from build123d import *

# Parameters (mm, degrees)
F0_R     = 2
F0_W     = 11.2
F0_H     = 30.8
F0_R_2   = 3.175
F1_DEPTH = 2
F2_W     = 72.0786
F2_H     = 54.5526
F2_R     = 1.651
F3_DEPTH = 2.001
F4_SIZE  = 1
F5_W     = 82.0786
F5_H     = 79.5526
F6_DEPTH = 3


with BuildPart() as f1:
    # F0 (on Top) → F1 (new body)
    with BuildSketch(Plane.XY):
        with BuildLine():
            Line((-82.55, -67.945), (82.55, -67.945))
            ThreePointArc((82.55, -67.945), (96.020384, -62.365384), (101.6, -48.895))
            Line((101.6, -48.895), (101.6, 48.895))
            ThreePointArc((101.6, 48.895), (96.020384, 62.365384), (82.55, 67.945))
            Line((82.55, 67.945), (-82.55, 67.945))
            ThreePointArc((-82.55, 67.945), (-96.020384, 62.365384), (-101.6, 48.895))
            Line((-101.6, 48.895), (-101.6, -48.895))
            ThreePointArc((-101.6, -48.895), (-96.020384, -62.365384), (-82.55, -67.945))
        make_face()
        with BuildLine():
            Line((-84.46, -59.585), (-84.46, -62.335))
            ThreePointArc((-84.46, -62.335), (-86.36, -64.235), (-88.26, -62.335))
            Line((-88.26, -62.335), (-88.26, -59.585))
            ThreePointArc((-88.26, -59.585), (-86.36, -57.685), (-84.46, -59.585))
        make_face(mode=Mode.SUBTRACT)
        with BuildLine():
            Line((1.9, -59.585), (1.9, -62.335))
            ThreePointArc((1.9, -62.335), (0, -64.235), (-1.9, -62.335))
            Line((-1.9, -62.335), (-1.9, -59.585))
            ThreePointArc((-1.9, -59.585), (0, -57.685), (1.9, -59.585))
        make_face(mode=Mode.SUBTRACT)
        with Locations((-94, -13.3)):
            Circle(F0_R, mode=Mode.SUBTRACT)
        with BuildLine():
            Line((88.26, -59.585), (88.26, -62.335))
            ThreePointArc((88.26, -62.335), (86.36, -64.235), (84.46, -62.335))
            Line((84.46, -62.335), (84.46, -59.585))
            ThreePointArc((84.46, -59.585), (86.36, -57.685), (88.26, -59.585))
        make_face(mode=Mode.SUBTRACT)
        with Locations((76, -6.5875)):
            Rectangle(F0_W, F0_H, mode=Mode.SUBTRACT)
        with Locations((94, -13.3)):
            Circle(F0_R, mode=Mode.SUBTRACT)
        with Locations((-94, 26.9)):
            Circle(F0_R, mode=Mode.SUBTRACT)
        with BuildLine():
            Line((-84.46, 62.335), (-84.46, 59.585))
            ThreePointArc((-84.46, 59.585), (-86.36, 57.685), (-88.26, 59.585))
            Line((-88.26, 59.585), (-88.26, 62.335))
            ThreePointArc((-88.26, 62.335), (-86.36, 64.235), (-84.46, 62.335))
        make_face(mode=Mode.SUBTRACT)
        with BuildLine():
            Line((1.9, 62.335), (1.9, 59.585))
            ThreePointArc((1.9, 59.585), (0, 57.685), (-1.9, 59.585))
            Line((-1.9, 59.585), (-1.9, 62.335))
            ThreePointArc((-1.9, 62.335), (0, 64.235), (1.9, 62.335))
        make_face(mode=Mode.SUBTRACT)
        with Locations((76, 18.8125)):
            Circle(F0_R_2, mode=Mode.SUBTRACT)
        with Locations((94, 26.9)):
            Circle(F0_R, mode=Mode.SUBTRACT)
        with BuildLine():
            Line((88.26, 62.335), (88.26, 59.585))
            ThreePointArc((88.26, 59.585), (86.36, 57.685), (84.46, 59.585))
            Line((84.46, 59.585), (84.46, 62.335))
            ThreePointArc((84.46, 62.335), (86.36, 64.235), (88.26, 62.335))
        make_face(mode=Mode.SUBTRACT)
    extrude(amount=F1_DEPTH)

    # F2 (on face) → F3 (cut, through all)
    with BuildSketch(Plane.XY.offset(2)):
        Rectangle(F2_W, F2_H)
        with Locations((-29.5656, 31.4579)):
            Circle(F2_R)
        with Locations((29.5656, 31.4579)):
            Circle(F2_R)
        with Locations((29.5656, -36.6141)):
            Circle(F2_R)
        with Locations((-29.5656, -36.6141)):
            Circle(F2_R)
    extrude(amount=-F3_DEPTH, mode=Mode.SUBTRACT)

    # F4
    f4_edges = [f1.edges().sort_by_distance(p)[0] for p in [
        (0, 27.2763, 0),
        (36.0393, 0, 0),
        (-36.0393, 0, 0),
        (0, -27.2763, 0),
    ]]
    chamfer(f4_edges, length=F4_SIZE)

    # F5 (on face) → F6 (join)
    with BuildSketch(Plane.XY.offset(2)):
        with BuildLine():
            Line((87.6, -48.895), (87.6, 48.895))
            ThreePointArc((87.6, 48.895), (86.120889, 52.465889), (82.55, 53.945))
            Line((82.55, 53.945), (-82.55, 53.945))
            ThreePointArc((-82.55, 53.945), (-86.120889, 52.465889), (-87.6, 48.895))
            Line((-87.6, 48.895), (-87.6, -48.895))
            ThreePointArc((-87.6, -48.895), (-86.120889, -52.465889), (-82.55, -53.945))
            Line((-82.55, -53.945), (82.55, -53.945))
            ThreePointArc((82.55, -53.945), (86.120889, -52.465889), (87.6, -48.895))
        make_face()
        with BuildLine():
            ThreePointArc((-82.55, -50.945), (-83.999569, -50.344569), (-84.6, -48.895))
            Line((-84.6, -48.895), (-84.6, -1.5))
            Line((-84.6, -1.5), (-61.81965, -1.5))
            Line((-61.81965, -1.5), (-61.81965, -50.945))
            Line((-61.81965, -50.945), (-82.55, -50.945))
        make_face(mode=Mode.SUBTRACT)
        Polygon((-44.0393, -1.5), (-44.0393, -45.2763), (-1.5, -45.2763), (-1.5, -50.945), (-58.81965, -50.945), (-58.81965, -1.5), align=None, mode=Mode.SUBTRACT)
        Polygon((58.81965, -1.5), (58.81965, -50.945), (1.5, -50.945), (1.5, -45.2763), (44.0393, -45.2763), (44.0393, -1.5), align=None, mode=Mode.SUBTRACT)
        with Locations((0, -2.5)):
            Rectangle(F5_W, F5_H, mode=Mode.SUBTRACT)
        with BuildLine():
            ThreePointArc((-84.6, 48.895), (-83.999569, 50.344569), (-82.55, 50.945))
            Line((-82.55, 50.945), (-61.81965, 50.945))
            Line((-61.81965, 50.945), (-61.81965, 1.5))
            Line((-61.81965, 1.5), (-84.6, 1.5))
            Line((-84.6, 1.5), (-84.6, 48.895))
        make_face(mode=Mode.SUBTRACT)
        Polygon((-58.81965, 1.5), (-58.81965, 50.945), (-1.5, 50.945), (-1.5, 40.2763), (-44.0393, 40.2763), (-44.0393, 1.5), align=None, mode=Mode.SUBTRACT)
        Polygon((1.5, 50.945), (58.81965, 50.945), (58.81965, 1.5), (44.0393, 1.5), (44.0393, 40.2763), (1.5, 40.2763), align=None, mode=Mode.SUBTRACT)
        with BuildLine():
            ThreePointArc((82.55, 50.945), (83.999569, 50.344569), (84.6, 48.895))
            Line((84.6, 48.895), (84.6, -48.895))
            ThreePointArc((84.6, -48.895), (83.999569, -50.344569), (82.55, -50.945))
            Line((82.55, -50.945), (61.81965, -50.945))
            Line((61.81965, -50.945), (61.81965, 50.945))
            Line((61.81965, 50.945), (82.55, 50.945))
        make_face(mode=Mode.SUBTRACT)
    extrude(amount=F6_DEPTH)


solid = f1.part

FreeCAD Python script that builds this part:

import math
import FreeCAD as App
import Part
import Sketcher


def edges_at(feature, points):
    """Names of the edges that pass closest to the given points."""
    edges = feature.Shape.Edges
    near = lambda p: min(range(len(edges)), key=lambda i: edges[i].distToShape(Part.Vertex(*p))[0])
    return sorted({f"Edge{near(p) + 1}" for p in points})

doc = App.newDocument("Part")
body = doc.addObject("PartDesign::Body", "Body")

# Sketch on XY plane
sketch1 = body.newObject("Sketcher::SketchObject", "Sketch")
sketch1.AttachmentSupport = (doc.getObject("XY_Plane"), [""])
sketch1.MapMode = "FlatFace"
sketch1.addGeometry([
    Part.LineSegment(App.Vector(-82.55, -67.945, 0), App.Vector(82.55, -67.945, 0)),  # 0
    Part.ArcOfCircle(Part.Circle(App.Vector(82.549999, -48.894999, 0), App.Vector(0, 0, 1), 19.050001), math.radians(-89.999998), math.radians(-0.000002)),  # 1
    Part.LineSegment(App.Vector(101.6, -48.895, 0), App.Vector(101.6, 48.895, 0)),  # 2
    Part.ArcOfCircle(Part.Circle(App.Vector(82.549999, 48.894999, 0), App.Vector(0, 0, 1), 19.050001), math.radians(0.000002), math.radians(89.999998)),  # 3
    Part.LineSegment(App.Vector(82.55, 67.945, 0), App.Vector(-82.55, 67.945, 0)),  # 4
    Part.ArcOfCircle(Part.Circle(App.Vector(-82.549999, 48.894999, 0), App.Vector(0, 0, 1), 19.050001), math.radians(90.000002), math.radians(179.999998)),  # 5
    Part.LineSegment(App.Vector(-101.6, 48.895, 0), App.Vector(-101.6, -48.895, 0)),  # 6
    Part.ArcOfCircle(Part.Circle(App.Vector(-82.549999, -48.894999, 0), App.Vector(0, 0, 1), 19.050001), math.radians(-179.999998), math.radians(-90.000002)),  # 7
    Part.ArcOfCircle(Part.Circle(App.Vector(-86.36, -59.585, 0), App.Vector(0, 0, 1), 1.9), math.radians(0), math.radians(180)),  # 8
    Part.LineSegment(App.Vector(-84.46, -59.585, 0), App.Vector(-84.46, -62.335, 0)),  # 9
    Part.ArcOfCircle(Part.Circle(App.Vector(-86.36, -62.335, 0), App.Vector(0, 0, 1), 1.9), math.radians(180), math.radians(360)),  # 10
    Part.LineSegment(App.Vector(-88.26, -62.335, 0), App.Vector(-88.26, -59.585, 0)),  # 11
    Part.Circle(App.Vector(-94, -13.3, 0), App.Vector(0, 0, 1), 2),  # 12
    Part.ArcOfCircle(Part.Circle(App.Vector(0, -59.585, 0), App.Vector(0, 0, 1), 1.9), math.radians(0), math.radians(180)),  # 13
    Part.LineSegment(App.Vector(1.9, -59.585, 0), App.Vector(1.9, -62.335, 0)),  # 14
    Part.ArcOfCircle(Part.Circle(App.Vector(0, -62.335, 0), App.Vector(0, 0, 1), 1.9), math.radians(180), math.radians(360)),  # 15
    Part.LineSegment(App.Vector(-1.9, -62.335, 0), App.Vector(-1.9, -59.585, 0)),  # 16
    Part.ArcOfCircle(Part.Circle(App.Vector(86.36, -59.585, 0), App.Vector(0, 0, 1), 1.9), math.radians(0), math.radians(180)),  # 17
    Part.LineSegment(App.Vector(88.26, -59.585, 0), App.Vector(88.26, -62.335, 0)),  # 18
    Part.ArcOfCircle(Part.Circle(App.Vector(86.36, -62.335, 0), App.Vector(0, 0, 1), 1.9), math.radians(180), math.radians(360)),  # 19
    Part.LineSegment(App.Vector(84.46, -62.335, 0), App.Vector(84.46, -59.585, 0)),  # 20
    Part.Circle(App.Vector(94, -13.3, 0), App.Vector(0, 0, 1), 2),  # 21
    Part.LineSegment(App.Vector(81.6, -21.9875, 0), App.Vector(70.4, -21.9875, 0)),  # 22
    Part.LineSegment(App.Vector(70.4, -21.9875, 0), App.Vector(70.4, 8.8125, 0)),  # 23
    Part.LineSegment(App.Vector(70.4, 8.8125, 0), App.Vector(81.6, 8.8125, 0)),  # 24
    Part.LineSegment(App.Vector(81.6, 8.8125, 0), App.Vector(81.6, -21.9875, 0)),  # 25
    Part.Circle(App.Vector(-94, 26.9, 0), App.Vector(0, 0, 1), 2),  # 26
    Part.ArcOfCircle(Part.Circle(App.Vector(-86.36, 62.335, 0), App.Vector(0, 0, 1), 1.9), math.radians(0), math.radians(180)),  # 27
    Part.LineSegment(App.Vector(-84.46, 62.335, 0), App.Vector(-84.46, 59.585, 0)),  # 28
    Part.ArcOfCircle(Part.Circle(App.Vector(-86.36, 59.585, 0), App.Vector(0, 0, 1), 1.9), math.radians(180), math.radians(360)),  # 29
    Part.LineSegment(App.Vector(-88.26, 59.585, 0), App.Vector(-88.26, 62.335, 0)),  # 30
    Part.Circle(App.Vector(76, 18.8125, 0), App.Vector(0, 0, 1), 3.175),  # 31
    Part.Circle(App.Vector(94, 26.9, 0), App.Vector(0, 0, 1), 2),  # 32
    Part.ArcOfCircle(Part.Circle(App.Vector(0, 62.335, 0), App.Vector(0, 0, 1), 1.9), math.radians(0), math.radians(180)),  # 33
    Part.LineSegment(App.Vector(1.9, 62.335, 0), App.Vector(1.9, 59.585, 0)),  # 34
    Part.ArcOfCircle(Part.Circle(App.Vector(0, 59.585, 0), App.Vector(0, 0, 1), 1.9), math.radians(180), math.radians(360)),  # 35
    Part.LineSegment(App.Vector(-1.9, 59.585, 0), App.Vector(-1.9, 62.335, 0)),  # 36
    Part.ArcOfCircle(Part.Circle(App.Vector(86.36, 62.335, 0), App.Vector(0, 0, 1), 1.9), math.radians(0), math.radians(180)),  # 37
    Part.LineSegment(App.Vector(88.26, 62.335, 0), App.Vector(88.26, 59.585, 0)),  # 38
    Part.ArcOfCircle(Part.Circle(App.Vector(86.36, 59.585, 0), App.Vector(0, 0, 1), 1.9), math.radians(180), math.radians(360)),  # 39
    Part.LineSegment(App.Vector(84.46, 59.585, 0), App.Vector(84.46, 62.335, 0)),  # 40
], False)
sketch1.addConstraint([
    Sketcher.Constraint("Tangent", 0, 2, 1, 1),
    Sketcher.Constraint("Tangent", 1, 2, 2, 1),
    Sketcher.Constraint("Tangent", 2, 2, 3, 1),
    Sketcher.Constraint("Tangent", 3, 2, 4, 1),
    Sketcher.Constraint("Tangent", 4, 2, 5, 1),
    Sketcher.Constraint("Tangent", 5, 2, 6, 1),
    Sketcher.Constraint("Tangent", 6, 2, 7, 1),
    Sketcher.Constraint("Tangent", 7, 2, 0, 1),
    Sketcher.Constraint("Tangent", 8, 1, 9, 1),
    Sketcher.Constraint("Tangent", 9, 2, 10, 2),
    Sketcher.Constraint("Tangent", 10, 1, 11, 1),
    Sketcher.Constraint("Tangent", 11, 2, 8, 2),
    Sketcher.Constraint("Tangent", 13, 1, 14, 1),
    Sketcher.Constraint("Tangent", 14, 2, 15, 2),
    Sketcher.Constraint("Tangent", 15, 1, 16, 1),
    Sketcher.Constraint("Tangent", 16, 2, 13, 2),
    Sketcher.Constraint("Tangent", 17, 1, 18, 1),
    Sketcher.Constraint("Tangent", 18, 2, 19, 2),
    Sketcher.Constraint("Tangent", 19, 1, 20, 1),
    Sketcher.Constraint("Tangent", 20, 2, 17, 2),
    Sketcher.Constraint("Coincident", 22, 2, 23, 1),
    Sketcher.Constraint("Coincident", 23, 2, 24, 1),
    Sketcher.Constraint("Coincident", 24, 2, 25, 1),
    Sketcher.Constraint("Coincident", 25, 2, 22, 1),
    Sketcher.Constraint("Tangent", 27, 1, 28, 1),
    Sketcher.Constraint("Tangent", 28, 2, 29, 2),
    Sketcher.Constraint("Tangent", 29, 1, 30, 1),
    Sketcher.Constraint("Tangent", 30, 2, 27, 2),
    Sketcher.Constraint("Tangent", 33, 1, 34, 1),
    Sketcher.Constraint("Tangent", 34, 2, 35, 2),
    Sketcher.Constraint("Tangent", 35, 1, 36, 1),
    Sketcher.Constraint("Tangent", 36, 2, 33, 2),
    Sketcher.Constraint("Tangent", 37, 1, 38, 1),
    Sketcher.Constraint("Tangent", 38, 2, 39, 2),
    Sketcher.Constraint("Tangent", 39, 1, 40, 1),
    Sketcher.Constraint("Tangent", 40, 2, 37, 2),
    Sketcher.Constraint("Horizontal", 0),
    Sketcher.Constraint("Vertical", 2),
    Sketcher.Constraint("Horizontal", 4),
    Sketcher.Constraint("Vertical", 6),
    Sketcher.Constraint("Vertical", 9),
    Sketcher.Constraint("Vertical", 11),
    Sketcher.Constraint("Vertical", 14),
    Sketcher.Constraint("Vertical", 16),
    Sketcher.Constraint("Vertical", 18),
    Sketcher.Constraint("Vertical", 20),
    Sketcher.Constraint("Horizontal", 22),
    Sketcher.Constraint("Vertical", 23),
    Sketcher.Constraint("Horizontal", 24),
    Sketcher.Constraint("Vertical", 25),
    Sketcher.Constraint("Vertical", 28),
    Sketcher.Constraint("Vertical", 30),
    Sketcher.Constraint("Vertical", 34),
    Sketcher.Constraint("Vertical", 36),
    Sketcher.Constraint("Vertical", 38),
    Sketcher.Constraint("Vertical", 40),
    Sketcher.Constraint("Equal", 1, 3),
    Sketcher.Constraint("Equal", 3, 5),
    Sketcher.Constraint("Equal", 5, 7),
    Sketcher.Constraint("Equal", 10, 13),
    Sketcher.Constraint("Equal", 15, 17),
    Sketcher.Constraint("Equal", 12, 21),
    Sketcher.Constraint("Equal", 21, 26),
    Sketcher.Constraint("Equal", 19, 27),
    Sketcher.Constraint("Equal", 26, 32),
    Sketcher.Constraint("Equal", 29, 33),
    Sketcher.Constraint("Equal", 35, 37),
    Sketcher.Constraint("Symmetric", 1, 3, 5, 3, -1, 1),
    Sketcher.Constraint("Symmetric", 19, 3, 27, 3, -1, 1),
    Sketcher.Constraint("Symmetric", 15, 3, 33, 3, -1, 1),
    Sketcher.Constraint("Symmetric", 10, 3, 37, 3, -1, 1),
    Sketcher.Constraint("Symmetric", 8, 3, 17, 3, -2),
    Sketcher.Constraint("Symmetric", 12, 3, 21, 3, -2),
    Sketcher.Constraint("Symmetric", 26, 3, 32, 3, -2),
    Sketcher.Constraint("Symmetric", 13, 3, 35, 3, -1),
    Sketcher.Constraint("Horizontal", 8, 3, 13, 3),
    Sketcher.Constraint("Horizontal", 10, 3, 15, 3),
    Sketcher.Constraint("Horizontal", 15, 3, 19, 3),
    Sketcher.Constraint("Horizontal", 29, 3, 35, 3),
    Sketcher.Constraint("Horizontal", 35, 3, 39, 3),
    Sketcher.Constraint("Vertical", 12, 3, 26, 3),
    Sketcher.Constraint("Diameter", 12, 4.0),
    Sketcher.Constraint("Radius", 8, 1.9),
    Sketcher.Constraint("Diameter", 31, 6.35),
    Sketcher.Constraint("Radius", 1, 19.050001),
    Sketcher.Constraint("DistanceX", 0, 1, 0, 2, 165.1),
    Sketcher.Constraint("DistanceX", 22, 2, 22, 1, 11.2),
    Sketcher.Constraint("DistanceY", 23, 1, 23, 2, 30.8),
    Sketcher.Constraint("DistanceX", 12, 3, -1, 1, 94.0),
    Sketcher.Constraint("DistanceX", -1, 1, 31, 3, 76.0),
    Sketcher.Constraint("DistanceY", 23, 2, 31, 3, 10.0),
    Sketcher.Constraint("DistanceY", 2, 1, 2, 2, 97.79),
    Sketcher.Constraint("DistanceY", 9, 2, 9, 1, 2.75),
    Sketcher.Constraint("DistanceY", 12, 3, -1, 1, 13.3),
    Sketcher.Constraint("DistanceY", -1, 1, 26, 3, 26.9),
    Sketcher.Constraint("DistanceX", -1, 1, 22, 2, 70.4),
    Sketcher.Constraint("DistanceX", 8, 3, -1, 1, 86.36),
    Sketcher.Constraint("DistanceY", 8, 3, 7, 3, 10.690001),
    Sketcher.Constraint("DistanceY", -1, 1, 31, 3, 18.8125),
])
pad1 = body.newObject("PartDesign::Pad", "Pad")
pad1.Profile = sketch1
pad1.Length = 2

# Sketch on XY plane
sketch2 = body.newObject("Sketcher::SketchObject", "Sketch001")
sketch2.AttachmentSupport = (doc.getObject("XY_Plane"), [""])
sketch2.MapMode = "FlatFace"
sketch2.AttachmentOffset = App.Placement(App.Vector(0, 0, 2), App.Rotation())
sketch2.addGeometry([
    Part.LineSegment(App.Vector(-36.0393, 27.2763, 0), App.Vector(-36.0393, -27.2763, 0)),  # 0
    Part.LineSegment(App.Vector(-36.0393, -27.2763, 0), App.Vector(36.0393, -27.2763, 0)),  # 1
    Part.LineSegment(App.Vector(36.0393, -27.2763, 0), App.Vector(36.0393, 27.2763, 0)),  # 2
    Part.LineSegment(App.Vector(36.0393, 27.2763, 0), App.Vector(-36.0393, 27.2763, 0)),  # 3
    Part.Circle(App.Vector(-29.5656, 31.4579, 0), App.Vector(0, 0, 1), 1.651),  # 4
    Part.Circle(App.Vector(29.5656, 31.4579, 0), App.Vector(0, 0, 1), 1.651),  # 5
    Part.Circle(App.Vector(29.5656, -36.6141, 0), App.Vector(0, 0, 1), 1.651),  # 6
    Part.Circle(App.Vector(-29.5656, -36.6141, 0), App.Vector(0, 0, 1), 1.651),  # 7
], False)
sketch2.addConstraint([
    Sketcher.Constraint("Coincident", 0, 2, 1, 1),
    Sketcher.Constraint("Coincident", 1, 2, 2, 1),
    Sketcher.Constraint("Coincident", 2, 2, 3, 1),
    Sketcher.Constraint("Coincident", 3, 2, 0, 1),
    Sketcher.Constraint("Vertical", 0),
    Sketcher.Constraint("Horizontal", 1),
    Sketcher.Constraint("Vertical", 2),
    Sketcher.Constraint("Horizontal", 3),
    Sketcher.Constraint("Equal", 4, 5),
    Sketcher.Constraint("Equal", 5, 6),
    Sketcher.Constraint("Equal", 6, 7),
    Sketcher.Constraint("Symmetric", 0, 2, 2, 2, -1, 1),
    Sketcher.Constraint("Symmetric", 4, 3, 5, 3, -2),
    Sketcher.Constraint("Symmetric", 6, 3, 7, 3, -2),
    Sketcher.Constraint("Vertical", 5, 3, 6, 3),
    Sketcher.Constraint("Diameter", 4, 3.302),
    Sketcher.Constraint("DistanceX", 1, 1, 1, 2, 72.0786),
    Sketcher.Constraint("DistanceY", 0, 2, 0, 1, 54.5526),
    Sketcher.Constraint("DistanceY", 6, 3, 5, 3, 68.072),
    Sketcher.Constraint("DistanceX", 4, 3, -1, 1, 29.5656),
    Sketcher.Constraint("DistanceY", -1, 1, 4, 3, 31.4579),
])
pocket1 = body.newObject("PartDesign::Pocket", "Pocket")
pocket1.Profile = sketch2
pocket1.Type = "ThroughAll"
doc.recompute()

chamfer = body.newObject("PartDesign::Chamfer", "Chamfer")
chamfer.Base = (pocket1, edges_at(pocket1, [
    (0, 27.276, 0),
    (36.039, 0, 0),
    (-36.039, 0, 0),
    (0, -27.276, 0),
]))
chamfer.Size = 1

# Sketch on XY plane
sketch3 = body.newObject("Sketcher::SketchObject", "Sketch002")
sketch3.AttachmentSupport = (doc.getObject("XY_Plane"), [""])
sketch3.MapMode = "FlatFace"
sketch3.AttachmentOffset = App.Placement(App.Vector(0, 0, 2), App.Rotation())
sketch3.addGeometry([
    Part.LineSegment(App.Vector(87.6, -48.895, 0), App.Vector(87.6, 48.895, 0)),  # 0
    Part.ArcOfCircle(Part.Circle(App.Vector(82.549999, 48.894999, 0), App.Vector(0, 0, 1), 5.050001), math.radians(0.000009), math.radians(89.999991)),  # 1
    Part.LineSegment(App.Vector(82.55, 53.945, 0), App.Vector(-82.55, 53.945, 0)),  # 2
    Part.ArcOfCircle(Part.Circle(App.Vector(-82.549999, 48.894999, 0), App.Vector(0, 0, 1), 5.050001), math.radians(90.000009), math.radians(179.999991)),  # 3
    Part.LineSegment(App.Vector(-87.6, 48.895, 0), App.Vector(-87.6, -48.895, 0)),  # 4
    Part.ArcOfCircle(Part.Circle(App.Vector(-82.549999, -48.894999, 0), App.Vector(0, 0, 1), 5.050001), math.radians(-179.999991), math.radians(-90.000009)),  # 5
    Part.LineSegment(App.Vector(-82.55, -53.945, 0), App.Vector(82.55, -53.945, 0)),  # 6
    Part.ArcOfCircle(Part.Circle(App.Vector(82.549999, -48.894999, 0), App.Vector(0, 0, 1), 5.050001), math.radians(-89.999991), math.radians(-0.000009)),  # 7
    Part.LineSegment(App.Vector(-61.81965, -50.945, 0), App.Vector(-82.55, -50.945, 0)),  # 8
    Part.ArcOfCircle(Part.Circle(App.Vector(-82.55, -48.895, 0), App.Vector(0, 0, 1), 2.05), math.radians(179.999991), math.radians(270.000009)),  # 9
    Part.LineSegment(App.Vector(-84.6, -48.895, 0), App.Vector(-84.6, -1.5, 0)),  # 10
    Part.LineSegment(App.Vector(-84.6, -1.5, 0), App.Vector(-61.81965, -1.5, 0)),  # 11
    Part.LineSegment(App.Vector(-61.81965, -1.5, 0), App.Vector(-61.81965, -50.945, 0)),  # 12
    Part.LineSegment(App.Vector(-58.81965, -1.5, 0), App.Vector(-44.0393, -1.5, 0)),  # 13
    Part.LineSegment(App.Vector(-44.0393, -1.5, 0), App.Vector(-44.0393, -45.2763, 0)),  # 14
    Part.LineSegment(App.Vector(-44.0393, -45.2763, 0), App.Vector(-1.5, -45.2763, 0)),  # 15
    Part.LineSegment(App.Vector(-1.5, -45.2763, 0), App.Vector(-1.5, -50.945, 0)),  # 16
    Part.LineSegment(App.Vector(-1.5, -50.945, 0), App.Vector(-58.81965, -50.945, 0)),  # 17
    Part.LineSegment(App.Vector(-58.81965, -50.945, 0), App.Vector(-58.81965, -1.5, 0)),  # 18
    Part.LineSegment(App.Vector(44.0393, -1.5, 0), App.Vector(58.81965, -1.5, 0)),  # 19
    Part.LineSegment(App.Vector(58.81965, -1.5, 0), App.Vector(58.81965, -50.945, 0)),  # 20
    Part.LineSegment(App.Vector(58.81965, -50.945, 0), App.Vector(1.5, -50.945, 0)),  # 21
    Part.LineSegment(App.Vector(1.5, -50.945, 0), App.Vector(1.5, -45.2763, 0)),  # 22
    Part.LineSegment(App.Vector(1.5, -45.2763, 0), App.Vector(44.0393, -45.2763, 0)),  # 23
    Part.LineSegment(App.Vector(44.0393, -45.2763, 0), App.Vector(44.0393, -1.5, 0)),  # 24
    Part.LineSegment(App.Vector(41.0393, -42.2763, 0), App.Vector(-41.0393, -42.2763, 0)),  # 25
    Part.LineSegment(App.Vector(-41.0393, -42.2763, 0), App.Vector(-41.0393, 37.2763, 0)),  # 26
    Part.LineSegment(App.Vector(-41.0393, 37.2763, 0), App.Vector(41.0393, 37.2763, 0)),  # 27
    Part.LineSegment(App.Vector(41.0393, 37.2763, 0), App.Vector(41.0393, -42.2763, 0)),  # 28
    Part.LineSegment(App.Vector(61.81965, 50.945, 0), App.Vector(82.55, 50.945, 0)),  # 29
    Part.ArcOfCircle(Part.Circle(App.Vector(82.55, 48.895, 0), App.Vector(0, 0, 1), 2.05), math.radians(-0.000009), math.radians(90.000009)),  # 30
    Part.LineSegment(App.Vector(84.6, 48.895, 0), App.Vector(84.6, -48.895, 0)),  # 31
    Part.ArcOfCircle(Part.Circle(App.Vector(82.55, -48.895, 0), App.Vector(0, 0, 1), 2.05), math.radians(-90.000009), math.radians(0.000009)),  # 32
    Part.LineSegment(App.Vector(82.55, -50.945, 0), App.Vector(61.81965, -50.945, 0)),  # 33
    Part.LineSegment(App.Vector(61.81965, -50.945, 0), App.Vector(61.81965, 50.945, 0)),  # 34
    Part.LineSegment(App.Vector(-84.6, 1.5, 0), App.Vector(-84.6, 48.895, 0)),  # 35
    Part.ArcOfCircle(Part.Circle(App.Vector(-82.55, 48.895, 0), App.Vector(0, 0, 1), 2.05), math.radians(89.999991), math.radians(180.000009)),  # 36
    Part.LineSegment(App.Vector(-82.55, 50.945, 0), App.Vector(-61.81965, 50.945, 0)),  # 37
    Part.LineSegment(App.Vector(-61.81965, 50.945, 0), App.Vector(-61.81965, 1.5, 0)),  # 38
    Part.LineSegment(App.Vector(-61.81965, 1.5, 0), App.Vector(-84.6, 1.5, 0)),  # 39
    Part.LineSegment(App.Vector(-44.0393, 1.5, 0), App.Vector(-58.81965, 1.5, 0)),  # 40
    Part.LineSegment(App.Vector(-58.81965, 1.5, 0), App.Vector(-58.81965, 50.945, 0)),  # 41
    Part.LineSegment(App.Vector(-58.81965, 50.945, 0), App.Vector(-1.5, 50.945, 0)),  # 42
    Part.LineSegment(App.Vector(-1.5, 50.945, 0), App.Vector(-1.5, 40.2763, 0)),  # 43
    Part.LineSegment(App.Vector(-1.5, 40.2763, 0), App.Vector(-44.0393, 40.2763, 0)),  # 44
    Part.LineSegment(App.Vector(-44.0393, 40.2763, 0), App.Vector(-44.0393, 1.5, 0)),  # 45
    Part.LineSegment(App.Vector(1.5, 40.2763, 0), App.Vector(1.5, 50.945, 0)),  # 46
    Part.LineSegment(App.Vector(1.5, 50.945, 0), App.Vector(58.81965, 50.945, 0)),  # 47
    Part.LineSegment(App.Vector(58.81965, 50.945, 0), App.Vector(58.81965, 1.5, 0)),  # 48
    Part.LineSegment(App.Vector(58.81965, 1.5, 0), App.Vector(44.0393, 1.5, 0)),  # 49
    Part.LineSegment(App.Vector(44.0393, 1.5, 0), App.Vector(44.0393, 40.2763, 0)),  # 50
    Part.LineSegment(App.Vector(44.0393, 40.2763, 0), App.Vector(1.5, 40.2763, 0)),  # 51
], False)
sketch3.addConstraint([
    Sketcher.Constraint("Tangent", 0, 2, 1, 1),
    Sketcher.Constraint("Tangent", 1, 2, 2, 1),
    Sketcher.Constraint("Tangent", 2, 2, 3, 1),
    Sketcher.Constraint("Tangent", 3, 2, 4, 1),
    Sketcher.Constraint("Tangent", 4, 2, 5, 1),
    Sketcher.Constraint("Tangent", 5, 2, 6, 1),
    Sketcher.Constraint("Tangent", 6, 2, 7, 1),
    Sketcher.Constraint("Tangent", 7, 2, 0, 1),
    Sketcher.Constraint("Tangent", 8, 2, 9, 2),
    Sketcher.Constraint("Tangent", 9, 1, 10, 1),
    Sketcher.Constraint("Coincident", 10, 2, 11, 1),
    Sketcher.Constraint("Coincident", 11, 2, 12, 1),
    Sketcher.Constraint("Coincident", 12, 2, 8, 1),
    Sketcher.Constraint("Coincident", 13, 2, 14, 1),
    Sketcher.Constraint("Coincident", 14, 2, 15, 1),
    Sketcher.Constraint("Coincident", 15, 2, 16, 1),
    Sketcher.Constraint("Coincident", 16, 2, 17, 1),
    Sketcher.Constraint("Coincident", 17, 2, 18, 1),
    Sketcher.Constraint("Coincident", 18, 2, 13, 1),
    Sketcher.Constraint("Coincident", 19, 2, 20, 1),
    Sketcher.Constraint("Coincident", 20, 2, 21, 1),
    Sketcher.Constraint("Coincident", 21, 2, 22, 1),
    Sketcher.Constraint("Coincident", 22, 2, 23, 1),
    Sketcher.Constraint("Coincident", 23, 2, 24, 1),
    Sketcher.Constraint("Coincident", 24, 2, 19, 1),
    Sketcher.Constraint("Coincident", 25, 2, 26, 1),
    Sketcher.Constraint("Coincident", 26, 2, 27, 1),
    Sketcher.Constraint("Coincident", 27, 2, 28, 1),
    Sketcher.Constraint("Coincident", 28, 2, 25, 1),
    Sketcher.Constraint("Tangent", 29, 2, 30, 2),
    Sketcher.Constraint("Tangent", 30, 1, 31, 1),
    Sketcher.Constraint("Tangent", 31, 2, 32, 2),
    Sketcher.Constraint("Tangent", 32, 1, 33, 1),
    Sketcher.Constraint("Coincident", 33, 2, 34, 1),
    Sketcher.Constraint("Coincident", 34, 2, 29, 1),
    Sketcher.Constraint("Tangent", 35, 2, 36, 2),
    Sketcher.Constraint("Tangent", 36, 1, 37, 1),
    Sketcher.Constraint("Coincident", 37, 2, 38, 1),
    Sketcher.Constraint("Coincident", 38, 2, 39, 1),
    Sketcher.Constraint("Coincident", 39, 2, 35, 1),
    Sketcher.Constraint("Coincident", 40, 2, 41, 1),
    Sketcher.Constraint("Coincident", 41, 2, 42, 1),
    Sketcher.Constraint("Coincident", 42, 2, 43, 1),
    Sketcher.Constraint("Coincident", 43, 2, 44, 1),
    Sketcher.Constraint("Coincident", 44, 2, 45, 1),
    Sketcher.Constraint("Coincident", 45, 2, 40, 1),
    Sketcher.Constraint("Coincident", 46, 2, 47, 1),
    Sketcher.Constraint("Coincident", 47, 2, 48, 1),
    Sketcher.Constraint("Coincident", 48, 2, 49, 1),
    Sketcher.Constraint("Coincident", 49, 2, 50, 1),
    Sketcher.Constraint("Coincident", 50, 2, 51, 1),
    Sketcher.Constraint("Coincident", 51, 2, 46, 1),
    Sketcher.Constraint("Vertical", 0),
    Sketcher.Constraint("Horizontal", 2),
    Sketcher.Constraint("Vertical", 4),
    Sketcher.Constraint("Horizontal", 6),
    Sketcher.Constraint("Horizontal", 8),
    Sketcher.Constraint("Vertical", 10),
    Sketcher.Constraint("Horizontal", 11),
    Sketcher.Constraint("Vertical", 12),
    Sketcher.Constraint("Horizontal", 13),
    Sketcher.Constraint("Vertical", 14),
    Sketcher.Constraint("Horizontal", 15),
    Sketcher.Constraint("Vertical", 16),
    Sketcher.Constraint("Horizontal", 17),
    Sketcher.Constraint("Vertical", 18),
    Sketcher.Constraint("Horizontal", 19),
    Sketcher.Constraint("Vertical", 20),
    Sketcher.Constraint("Horizontal", 21),
    Sketcher.Constraint("Vertical", 22),
    Sketcher.Constraint("Horizontal", 23),
    Sketcher.Constraint("Vertical", 24),
    Sketcher.Constraint("Horizontal", 25),
    Sketcher.Constraint("Vertical", 26),
    Sketcher.Constraint("Horizontal", 27),
    Sketcher.Constraint("Vertical", 28),
    Sketcher.Constraint("Horizontal", 29),
    Sketcher.Constraint("Vertical", 31),
    Sketcher.Constraint("Horizontal", 33),
    Sketcher.Constraint("Vertical", 34),
    Sketcher.Constraint("Vertical", 35),
    Sketcher.Constraint("Horizontal", 37),
    Sketcher.Constraint("Vertical", 38),
    Sketcher.Constraint("Horizontal", 39),
    Sketcher.Constraint("Horizontal", 40),
    Sketcher.Constraint("Vertical", 41),
    Sketcher.Constraint("Horizontal", 42),
    Sketcher.Constraint("Vertical", 43),
    Sketcher.Constraint("Horizontal", 44),
    Sketcher.Constraint("Vertical", 45),
    Sketcher.Constraint("Vertical", 46),
    Sketcher.Constraint("Horizontal", 47),
    Sketcher.Constraint("Vertical", 48),
    Sketcher.Constraint("Horizontal", 49),
    Sketcher.Constraint("Vertical", 50),
    Sketcher.Constraint("Horizontal", 51),
    Sketcher.Constraint("Coincident", 9, 3, 5, 3),
    Sketcher.Constraint("Coincident", 30, 3, 1, 3),
    Sketcher.Constraint("Coincident", 32, 3, 7, 3),
    Sketcher.Constraint("Coincident", 36, 3, 3, 3),
    Sketcher.Constraint("Equal", 1, 3),
    Sketcher.Constraint("Equal", 3, 5),
    Sketcher.Constraint("Equal", 5, 7),
    Sketcher.Constraint("Equal", 9, 30),
    Sketcher.Constraint("Equal", 32, 36),
    Sketcher.Constraint("Symmetric", 1, 3, 5, 3, -1, 1),
    Sketcher.Constraint("Symmetric", 19, 2, 40, 2, -1, 1),
    Sketcher.Constraint("Symmetric", 21, 2, 42, 2, -1, 1),
    Sketcher.Constraint("Symmetric", 16, 2, 46, 2, -1, 1),
    Sketcher.Constraint("Symmetric", 18, 2, 48, 2, -1, 1),
    Sketcher.Constraint("Symmetric", 18, 2, 19, 2, -2),
    Sketcher.Constraint("Symmetric", 16, 2, 21, 2, -2),
    Sketcher.Constraint("Symmetric", 14, 2, 23, 2, -2),
    Sketcher.Constraint("Symmetric", 44, 2, 50, 2, -2),
    Sketcher.Constraint("Symmetric", 11, 2, 38, 2, -1),
    Sketcher.Constraint("Horizontal", 11, 2, 13, 2),
    Sketcher.Constraint("Horizontal", 12, 2, 16, 2),
    Sketcher.Constraint("Vertical", 14, 2, 44, 2),
    Sketcher.Constraint("Equal", 8, 29),
    Sketcher.Constraint("Radius", 1, 5.050001),
    Sketcher.Constraint("Radius", 9, 2.05),
    Sketcher.Constraint("DistanceX", 2, 2, 2, 1, 165.1),
    Sketcher.Constraint("DistanceX", 12, 2, 17, 2, 3.0),
    Sketcher.Constraint("DistanceX", 16, 2, 21, 2, 3.0),
    Sketcher.Constraint("DistanceX", 14, 2, 25, 2, 3.0),
    Sketcher.Constraint("DistanceY", 14, 2, 25, 2, 3.0),
    Sketcher.Constraint("DistanceX", 27, 2, 24, 2, 3.0),
    Sketcher.Constraint("DistanceY", 11, 2, 38, 2, 3.0),
    Sketcher.Constraint("DistanceY", 26, 2, 43, 2, 3.0),
    Sketcher.Constraint("DistanceY", 0, 1, 0, 2, 97.79),
    Sketcher.Constraint("DistanceX", 15, 1, 15, 2, 42.5393),
    Sketcher.Constraint("DistanceY", 14, 2, 14, 1, 43.7763),
    Sketcher.Constraint("DistanceY", 26, 1, 26, 2, 79.5526),
    Sketcher.Constraint("DistanceX", 8, 2, 8, 1, 20.73035),
])
pad2 = body.newObject("PartDesign::Pad", "Pad001")
pad2.Profile = sketch3
pad2.Length = 3

doc.recompute()
